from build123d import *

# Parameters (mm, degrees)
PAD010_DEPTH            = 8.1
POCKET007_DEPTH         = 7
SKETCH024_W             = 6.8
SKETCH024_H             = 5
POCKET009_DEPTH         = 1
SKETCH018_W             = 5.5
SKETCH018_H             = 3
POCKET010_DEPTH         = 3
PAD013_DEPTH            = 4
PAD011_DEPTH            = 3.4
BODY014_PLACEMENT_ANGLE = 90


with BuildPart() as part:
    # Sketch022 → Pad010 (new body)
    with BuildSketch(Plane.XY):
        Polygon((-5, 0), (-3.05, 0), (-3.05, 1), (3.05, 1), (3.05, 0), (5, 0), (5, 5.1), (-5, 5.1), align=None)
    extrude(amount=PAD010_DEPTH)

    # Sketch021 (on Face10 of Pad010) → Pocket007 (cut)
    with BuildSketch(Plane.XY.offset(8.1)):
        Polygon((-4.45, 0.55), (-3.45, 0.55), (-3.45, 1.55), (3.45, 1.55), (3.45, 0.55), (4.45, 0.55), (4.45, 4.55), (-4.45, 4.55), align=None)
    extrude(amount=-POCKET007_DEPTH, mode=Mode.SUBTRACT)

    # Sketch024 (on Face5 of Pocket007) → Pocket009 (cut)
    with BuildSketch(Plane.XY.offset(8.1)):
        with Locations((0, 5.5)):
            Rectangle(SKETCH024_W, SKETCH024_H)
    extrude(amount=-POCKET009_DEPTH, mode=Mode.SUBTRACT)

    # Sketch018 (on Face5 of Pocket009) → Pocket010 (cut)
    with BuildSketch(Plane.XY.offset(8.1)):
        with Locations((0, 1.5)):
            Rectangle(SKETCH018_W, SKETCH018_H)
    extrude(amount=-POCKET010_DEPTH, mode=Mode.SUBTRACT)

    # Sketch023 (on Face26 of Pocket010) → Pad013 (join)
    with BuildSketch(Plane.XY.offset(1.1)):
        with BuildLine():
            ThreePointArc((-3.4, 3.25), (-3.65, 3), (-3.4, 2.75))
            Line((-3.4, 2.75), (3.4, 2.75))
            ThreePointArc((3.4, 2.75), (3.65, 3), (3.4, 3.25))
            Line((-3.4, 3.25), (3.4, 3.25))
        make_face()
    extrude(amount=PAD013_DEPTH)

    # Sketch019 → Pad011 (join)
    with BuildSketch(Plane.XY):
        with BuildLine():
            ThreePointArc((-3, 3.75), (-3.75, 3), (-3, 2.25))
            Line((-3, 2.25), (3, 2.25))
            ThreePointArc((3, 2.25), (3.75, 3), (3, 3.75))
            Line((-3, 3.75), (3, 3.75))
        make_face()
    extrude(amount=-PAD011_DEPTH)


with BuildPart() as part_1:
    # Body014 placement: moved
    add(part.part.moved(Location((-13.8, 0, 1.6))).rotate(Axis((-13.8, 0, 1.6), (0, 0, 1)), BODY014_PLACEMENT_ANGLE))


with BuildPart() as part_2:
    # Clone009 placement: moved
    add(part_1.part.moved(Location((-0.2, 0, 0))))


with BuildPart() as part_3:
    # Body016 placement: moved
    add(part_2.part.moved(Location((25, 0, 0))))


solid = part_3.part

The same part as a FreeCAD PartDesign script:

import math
import FreeCAD as App
import Part
import Sketcher

V = App.Vector


def add_polygon(sketch, points):
    """Adds a closed chain of lines whose ends are joined by coincident constraints."""
    first, n = sketch.GeometryCount, len(points)
    for a, b in zip(points, points[1:] + points[:1]):
        sketch.addGeometry(Part.LineSegment(App.Vector(*a, 0), App.Vector(*b, 0)), False)
    for i in range(n):
        sketch.addConstraint(Sketcher.Constraint("Coincident", first + i, 2, first + (i + 1) % n, 1))

doc = App.newDocument("Part")
body = doc.addObject("PartDesign::Body", "Body")

sketch1 = body.newObject("Sketcher::SketchObject", "Sketch")
sketch1.AttachmentSupport = (doc.getObject("XY_Plane"), [""])
sketch1.MapMode = "FlatFace"
add_polygon(sketch1, [(-5, 0), (-3, 0), (-3, 1), (3, 1), (3, 0), (5, 0), (5, 5.1), (-5, 5.1)])
sketch1.addConstraint([
    Sketcher.Constraint("Horizontal", 0),
    Sketcher.Constraint("Vertical", 1),
    Sketcher.Constraint("Horizontal", 2),
    Sketcher.Constraint("Vertical", 3),
    Sketcher.Constraint("Horizontal", 4),
    Sketcher.Constraint("Vertical", 5),
    Sketcher.Constraint("Horizontal", 6),
    Sketcher.Constraint("Vertical", 7),
    Sketcher.Constraint("Symmetric", 0, 2, 3, 2, -1, 1),
    Sketcher.Constraint("Symmetric", 4, 2, 7, 2, -2),
    Sketcher.Constraint("DistanceX", 6, 2, 6, 1, 10.0),
    Sketcher.Constraint("DistanceY", 1, 1, 1, 2, 1.0),
    Sketcher.Constraint("DistanceX", 2, 1, 2, 2, 6.1),
    Sketcher.Constraint("DistanceY", 5, 1, 5, 2, 5.1),
])
pad1 = body.newObject("PartDesign::Pad", "Pad")
pad1.Profile = sketch1
pad1.Length = 8.1

sketch2 = body.newObject("Sketcher::SketchObject", "Sketch001")
sketch2.AttachmentSupport = (doc.getObject("XY_Plane"), [""])
sketch2.MapMode = "FlatFace"
sketch2.AttachmentOffset = App.Placement(V(0, 0, 8.1), App.Rotation())
add_polygon(sketch2, [(-4.5, 0.6), (-3.5, 0.6), (-3.5, 1.6), (3.5, 1.6), (3.5, 0.6), (4.5, 0.6), (4.5, 4.5), (-4.5, 4.5)])
sketch2.addConstraint([
    Sketcher.Constraint("Horizontal", 0),
    Sketcher.Constraint("Vertical", 1),
    Sketcher.Constraint("Horizontal", 2),
    Sketcher.Constraint("Vertical", 3),
    Sketcher.Constraint("Horizontal", 4),
    Sketcher.Constraint("Vertical", 5),
    Sketcher.Constraint("Horizontal", 6),
    Sketcher.Constraint("Vertical", 7),
    Sketcher.Constraint("Symmetric", 0, 2, 3, 2, -2),
    Sketcher.Constraint("Equal", 0, 4),
    Sketcher.Constraint("Equal", 4, 1),
    Sketcher.Constraint("DistanceX", 0, 1, 0, 2, 1.0),
    Sketcher.Constraint("DistanceY", 5, 1, 5, 2, 4.0),
    Sketcher.Constraint("DistanceX", 2, 1, 2, 2, 6.9),
    Sketcher.Constraint("DistanceY", -1, 1, 0, 2, 0.55),
])
pocket1 = body.newObject("PartDesign::Pocket", "Pocket")
pocket1.Profile = sketch2
pocket1.Length = 7

sketch3 = body.newObject("Sketcher::SketchObject", "Sketch002")
sketch3.AttachmentSupport = (doc.getObject("XY_Plane"), [""])
sketch3.MapMode = "FlatFace"
sketch3.AttachmentOffset = App.Placement(V(0, 0, 8.1), App.Rotation())
add_polygon(sketch3, [(-3, 8), (-3, 3), (3, 3), (3, 8)])
sketch3.addConstraint([
    Sketcher.Constraint("Vertical", 0),
    Sketcher.Constraint("Horizontal", 1),
    Sketcher.Constraint("Vertical", 2),
    Sketcher.Constraint("Horizontal", 3),
    Sketcher.Constraint("DistanceY", 0, 2, 0, 1, 5.0),
    Sketcher.Constraint("DistanceX", 1, 1, 1, 2, 6.8),
    Sketcher.Constraint("DistanceY", -1, 1, 0, 2, 3.0),
    Sketcher.Constraint("DistanceX", 0, 2, -1, 1, 3.4),
])
pocket2 = body.newObject("PartDesign::Pocket", "Pocket001")
pocket2.Profile = sketch3
pocket2.Length = 1

sketch4 = body.newObject("Sketcher::SketchObject", "Sketch003")
sketch4.AttachmentSupport = (doc.getObject("XY_Plane"), [""])
sketch4.MapMode = "FlatFace"
sketch4.AttachmentOffset = App.Placement(V(0, 0, 8.1), App.Rotation())
add_polygon(sketch4, [(-2.8, 3), (-2.8, 0), (2.8, 0), (2.8, 3)])
sketch4.addConstraint([
    Sketcher.Constraint("Vertical", 0),
    Sketcher.Constraint("Horizontal", 1),
    Sketcher.Constraint("Vertical", 2),
    Sketcher.Constraint("Horizontal", 3),
    Sketcher.Constraint("Symmetric", 0, 2, 1, 2, -1, 1),
    Sketcher.Constraint("DistanceY", 0, 2, 0, 1, 3.0),
    Sketcher.Constraint("DistanceX", 1, 1, 1, 2, 5.5),
])
pocket3 = body.newObject("PartDesign::Pocket", "Pocket002")
pocket3.Profile = sketch4
pocket3.Length = 3

sketch5 = body.newObject("Sketcher::SketchObject", "Sketch004")
sketch5.AttachmentSupport = (doc.getObject("XY_Plane"), [""])
sketch5.MapMode = "FlatFace"
sketch5.AttachmentOffset = App.Placement(V(0, 0, 1.1), App.Rotation())
sketch5.addGeometry([
    Part.ArcOfCircle(Part.Circle(V(-3.4, 3, 0), V(0, 0, 1), 0.25), math.radians(90), math.radians(270)),
    Part.LineSegment(V(-3.4, 2.75, 0), V(3.4, 2.75, 0)),
    Part.ArcOfCircle(Part.Circle(V(3.4, 3, 0), V(0, 0, 1), 0.25), math.radians(-90), math.radians(90)),
    Part.LineSegment(V(3.4, 3.25, 0), V(-3.4, 3.25, 0)),
], False)
sketch5.addConstraint([
    Sketcher.Constraint("Tangent", 0, 2, 1, 1),
    Sketcher.Constraint("Tangent", 1, 2, 2, 1),
    Sketcher.Constraint("Tangent", 2, 2, 3, 1),
    Sketcher.Constraint("Tangent", 3, 2, 0, 1),
    Sketcher.Constraint("Horizontal", 1),
    Sketcher.Constraint("Horizontal", 3),
    Sketcher.Constraint("Radius", 0, 0.25),
    Sketcher.Constraint("DistanceX", 1, 1, 1, 2, 6.8),
    Sketcher.Constraint("DistanceY", -1, 1, 0, 3, 3.0),
    Sketcher.Constraint("DistanceX", 0, 3, -1, 1, 3.4),
])
pad2 = body.newObject("PartDesign::Pad", "Pad001")
pad2.Profile = sketch5
pad2.Length = 4

sketch6 = body.newObject("Sketcher::SketchObject", "Sketch005")
sketch6.AttachmentSupport = (doc.getObject("XY_Plane"), [""])
sketch6.MapMode = "FlatFace"
sketch6.addGeometry([
    Part.ArcOfCircle(Part.Circle(V(-3, 3, 0), V(0, 0, 1), 0.8), math.radians(90), math.radians(270)),
    Part.LineSegment(V(-3, 2.2, 0), V(3, 2.2, 0)),
    Part.ArcOfCircle(Part.Circle(V(3, 3, 0), V(0, 0, 1), 0.8), math.radians(-90), math.radians(90)),
    Part.LineSegment(V(3, 3.8, 0), V(-3, 3.8, 0)),
], False)
sketch6.addConstraint([
    Sketcher.Constraint("Tangent", 0, 2, 1, 1),
    Sketcher.Constraint("Tangent", 1, 2, 2, 1),
    Sketcher.Constraint("Tangent", 2, 2, 3, 1),
    Sketcher.Constraint("Tangent", 3, 2, 0, 1),
    Sketcher.Constraint("Horizontal", 1),
    Sketcher.Constraint("Horizontal", 3),
    Sketcher.Constraint("DistanceX", 1, 1, 1, 2, 6.0),
    Sketcher.Constraint("Radius", 0, 0.75),
    Sketcher.Constraint("DistanceX", 0, 3, -1, 1, 3.0),
    Sketcher.Constraint("DistanceY", -1, 1, 0, 3, 3.0),
])
pad3 = body.newObject("PartDesign::Pad", "Pad002")
pad3.Profile = sketch6
pad3.Length = 3.4
pad3.Reversed = True
body2 = doc.addObject("PartDesign::Body", "Body001")
doc.recompute()

body.Placement = App.Placement(V(-13.8, 0, 1.6), App.Rotation(V(0, 0, 1), 90))
boolean = body2.newObject("PartDesign::Boolean", "Boolean")
boolean.Type = "Fuse"
boolean.addObjects([body])
body3 = doc.addObject("PartDesign::Body", "Body002")
doc.recompute()

body2.Placement = App.Placement(V(-0.2, 0, 0), App.Rotation(V(0, 0, 1), 0))
boolean2 = body3.newObject("PartDesign::Boolean", "Boolean001")
boolean2.Type = "Fuse"
boolean2.addObjects([body2])
body4 = doc.addObject("PartDesign::Body", "Body003")
doc.recompute()

body3.Placement = App.Placement(V(25, 0, 0), App.Rotation(V(0, 0, 1), 0))
boolean3 = body4.newObject("PartDesign::Boolean", "Boolean002")
boolean3.Type = "Fuse"
boolean3.addObjects([body3])

doc.recompute()
